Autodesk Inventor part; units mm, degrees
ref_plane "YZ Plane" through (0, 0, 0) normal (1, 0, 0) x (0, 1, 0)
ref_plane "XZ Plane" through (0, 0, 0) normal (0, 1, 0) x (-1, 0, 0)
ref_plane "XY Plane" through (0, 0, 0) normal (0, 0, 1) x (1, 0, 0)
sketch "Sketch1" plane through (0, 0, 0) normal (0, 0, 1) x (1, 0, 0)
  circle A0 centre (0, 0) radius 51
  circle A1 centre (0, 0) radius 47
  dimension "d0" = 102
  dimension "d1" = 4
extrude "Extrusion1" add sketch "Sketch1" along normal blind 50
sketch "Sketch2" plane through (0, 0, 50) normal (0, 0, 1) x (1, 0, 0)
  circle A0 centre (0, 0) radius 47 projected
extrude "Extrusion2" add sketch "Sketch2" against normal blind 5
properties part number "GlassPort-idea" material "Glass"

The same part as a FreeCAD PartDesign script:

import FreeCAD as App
import Part
import Sketcher

V = App.Vector

doc = App.newDocument("Part")
body = doc.addObject("PartDesign::Body", "Body")

# Sketch on XY plane
sketch1 = doc.addObject("Sketcher::SketchObject", "Sketch")
body.addObject(sketch1)
sketch1.AttachmentSupport = (doc.XY_Plane, [""])
sketch1.MapMode = "FlatFace"
sketch1.addGeometry([
    Part.Circle(V(0, 0, 0), V(0, 0, 1), 51),
    Part.Circle(V(0, 0, 0), V(0, 0, 1), 47),
], False)
sketch1.addConstraint([
    Sketcher.Constraint("Coincident", 0, 3, -1, 1),
    Sketcher.Constraint("Coincident", 1, 3, -1, 1),
    Sketcher.Constraint("Diameter", 0, 102.0),
    Sketcher.Constraint("Diameter", 1, 94.0),
])
pad1 = doc.addObject("PartDesign::Pad", "Pad")
body.addObject(pad1)
pad1.Profile = sketch1
pad1.Length = 50

# Sketch on XY plane
sketch2 = doc.addObject("Sketcher::SketchObject", "Sketch001")
body.addObject(sketch2)
sketch2.AttachmentSupport = (doc.XY_Plane, [""])
sketch2.MapMode = "FlatFace"
sketch2.AttachmentOffset = App.Placement(V(0, 0, 50), App.Rotation())
sketch2.addGeometry(Part.Circle(V(0, 0, 0), V(0, 0, 1), 47), False)
sketch2.addConstraint([
    Sketcher.Constraint("Coincident", 0, 3, -1, 1),
    Sketcher.Constraint("Diameter", 0, 94.0),
])
pad2 = doc.addObject("PartDesign::Pad", "Pad001")
body.addObject(pad2)
pad2.Profile = sketch2
pad2.Length = 5
pad2.Reversed = True

doc.recompute()
